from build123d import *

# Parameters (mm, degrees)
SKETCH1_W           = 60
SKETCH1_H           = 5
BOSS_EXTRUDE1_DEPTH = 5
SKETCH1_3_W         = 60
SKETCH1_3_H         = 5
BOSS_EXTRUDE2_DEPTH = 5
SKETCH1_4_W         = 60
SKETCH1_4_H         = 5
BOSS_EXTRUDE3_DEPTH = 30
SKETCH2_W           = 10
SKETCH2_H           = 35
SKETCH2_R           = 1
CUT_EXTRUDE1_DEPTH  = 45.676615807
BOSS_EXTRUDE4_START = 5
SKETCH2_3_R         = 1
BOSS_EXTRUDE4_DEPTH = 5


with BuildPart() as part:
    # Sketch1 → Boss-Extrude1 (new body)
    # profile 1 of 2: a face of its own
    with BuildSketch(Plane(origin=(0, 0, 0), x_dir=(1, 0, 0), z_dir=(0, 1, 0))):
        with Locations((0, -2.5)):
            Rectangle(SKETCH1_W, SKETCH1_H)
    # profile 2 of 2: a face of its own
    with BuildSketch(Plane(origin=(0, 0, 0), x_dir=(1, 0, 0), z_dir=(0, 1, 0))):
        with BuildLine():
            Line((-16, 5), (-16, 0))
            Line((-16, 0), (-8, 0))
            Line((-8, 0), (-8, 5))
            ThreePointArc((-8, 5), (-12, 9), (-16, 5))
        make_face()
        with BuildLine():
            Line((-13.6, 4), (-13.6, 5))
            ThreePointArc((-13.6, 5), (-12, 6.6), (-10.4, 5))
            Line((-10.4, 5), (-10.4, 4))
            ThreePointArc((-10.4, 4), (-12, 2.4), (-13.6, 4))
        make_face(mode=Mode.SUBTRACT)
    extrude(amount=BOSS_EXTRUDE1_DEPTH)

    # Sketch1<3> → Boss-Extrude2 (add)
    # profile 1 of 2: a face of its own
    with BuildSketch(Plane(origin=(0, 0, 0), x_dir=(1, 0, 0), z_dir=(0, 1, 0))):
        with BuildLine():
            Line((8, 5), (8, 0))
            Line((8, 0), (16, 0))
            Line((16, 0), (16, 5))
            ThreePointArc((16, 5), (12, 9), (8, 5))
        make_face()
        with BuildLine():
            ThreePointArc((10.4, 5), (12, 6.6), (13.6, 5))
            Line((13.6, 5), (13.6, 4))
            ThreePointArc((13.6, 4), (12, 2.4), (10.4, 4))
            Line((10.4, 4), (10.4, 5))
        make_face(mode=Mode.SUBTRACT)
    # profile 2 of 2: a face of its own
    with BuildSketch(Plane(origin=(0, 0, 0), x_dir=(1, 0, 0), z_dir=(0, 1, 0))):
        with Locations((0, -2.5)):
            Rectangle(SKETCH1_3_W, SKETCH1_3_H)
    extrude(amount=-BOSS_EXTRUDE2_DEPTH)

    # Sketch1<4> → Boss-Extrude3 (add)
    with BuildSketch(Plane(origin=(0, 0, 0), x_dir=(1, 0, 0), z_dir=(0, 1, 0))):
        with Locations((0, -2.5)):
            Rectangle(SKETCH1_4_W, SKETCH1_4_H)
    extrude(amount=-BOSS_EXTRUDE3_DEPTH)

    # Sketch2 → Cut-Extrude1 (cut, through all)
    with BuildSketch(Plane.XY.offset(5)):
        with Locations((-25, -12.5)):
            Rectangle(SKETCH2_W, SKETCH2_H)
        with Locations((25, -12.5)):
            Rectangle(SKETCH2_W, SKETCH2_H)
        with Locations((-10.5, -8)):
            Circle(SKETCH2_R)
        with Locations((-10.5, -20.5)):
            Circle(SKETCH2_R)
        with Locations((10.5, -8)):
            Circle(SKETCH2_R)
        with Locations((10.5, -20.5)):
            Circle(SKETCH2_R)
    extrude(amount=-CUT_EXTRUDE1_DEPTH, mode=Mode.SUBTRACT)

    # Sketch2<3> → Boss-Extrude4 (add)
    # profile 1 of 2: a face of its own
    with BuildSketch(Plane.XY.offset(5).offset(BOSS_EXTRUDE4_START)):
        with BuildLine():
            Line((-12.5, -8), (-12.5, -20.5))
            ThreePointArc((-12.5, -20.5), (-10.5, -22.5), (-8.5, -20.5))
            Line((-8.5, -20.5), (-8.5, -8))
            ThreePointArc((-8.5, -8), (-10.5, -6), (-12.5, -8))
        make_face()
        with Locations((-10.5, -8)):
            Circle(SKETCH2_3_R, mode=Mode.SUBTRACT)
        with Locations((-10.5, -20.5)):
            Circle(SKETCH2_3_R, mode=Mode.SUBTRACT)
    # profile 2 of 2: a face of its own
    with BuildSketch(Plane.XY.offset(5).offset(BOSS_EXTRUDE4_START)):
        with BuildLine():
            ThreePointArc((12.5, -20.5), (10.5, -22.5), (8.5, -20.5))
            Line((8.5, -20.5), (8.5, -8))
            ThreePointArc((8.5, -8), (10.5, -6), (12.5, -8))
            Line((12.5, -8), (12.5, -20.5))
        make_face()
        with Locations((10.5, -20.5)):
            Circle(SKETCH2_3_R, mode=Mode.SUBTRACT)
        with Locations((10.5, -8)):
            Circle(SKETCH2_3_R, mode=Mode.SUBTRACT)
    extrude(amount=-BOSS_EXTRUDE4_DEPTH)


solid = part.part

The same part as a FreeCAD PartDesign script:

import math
import FreeCAD as App
import Part
import Sketcher

V = App.Vector

doc = App.newDocument("Part")
body = doc.addObject("PartDesign::Body", "Body")

sketch1 = body.newObject("Sketcher::SketchObject", "Sketch")
sketch1.AttachmentSupport = (doc.getObject("XZ_Plane"), [""])
sketch1.MapMode = "FlatFace"
sketch1.addGeometry(Part.LineSegment(V(-30, 0, 0), V(-30, 5, 0)), False)
sketch1.addGeometry(Part.LineSegment(V(-30, 5, 0), V(30, 5, 0)), False)
sketch1.addGeometry(Part.LineSegment(V(30, 5, 0), V(30, 0, 0)), False)
sketch1.addGeometry(Part.LineSegment(V(30, 0, 0), V(-8, 0, 0)), False)
sketch1.addGeometry(Part.LineSegment(V(-8, 0, 0), V(-8, -5, 0)), False)
sketch1.addGeometry(Part.ArcOfCircle(Part.Circle(V(-12, -5, 0), V(0, 0, 1), 4), math.radians(180), math.radians(360)), False)
sketch1.addGeometry(Part.LineSegment(V(-16, -5, 0), V(-16, 0, 0)), False)
sketch1.addGeometry(Part.LineSegment(V(-16, 0, 0), V(-30, 0, 0)), False)
sketch1.addGeometry(Part.LineSegment(V(-13.6, -4, 0), V(-13.6, -5, 0)), False)
sketch1.addGeometry(Part.ArcOfCircle(Part.Circle(V(-12, -5, 0), V(0, 0, 1), 1.6), math.radians(180), math.radians(360)), False)
sketch1.addGeometry(Part.LineSegment(V(-10.4, -5, 0), V(-10.4, -4, 0)), False)
sketch1.addGeometry(Part.ArcOfCircle(Part.Circle(V(-12, -4, 0), V(0, 0, 1), 1.6), math.radians(0), math.radians(180)), False)
sketch1.addConstraint(Sketcher.Constraint("Coincident", 0, 2, 1, 1))
sketch1.addConstraint(Sketcher.Constraint("Coincident", 1, 2, 2, 1))
sketch1.addConstraint(Sketcher.Constraint("Coincident", 2, 2, 3, 1))
sketch1.addConstraint(Sketcher.Constraint("Coincident", 3, 2, 4, 1))
sketch1.addConstraint(Sketcher.Constraint("Tangent", 4, 2, 5, 2))
sketch1.addConstraint(Sketcher.Constraint("Tangent", 5, 1, 6, 1))
sketch1.addConstraint(Sketcher.Constraint("Coincident", 6, 2, 7, 1))
sketch1.addConstraint(Sketcher.Constraint("Coincident", 7, 2, 0, 1))
sketch1.addConstraint(Sketcher.Constraint("Tangent", 8, 2, 9, 1))
sketch1.addConstraint(Sketcher.Constraint("Tangent", 9, 2, 10, 1))
sketch1.addConstraint(Sketcher.Constraint("Tangent", 10, 2, 11, 1))
sketch1.addConstraint(Sketcher.Constraint("Tangent", 11, 2, 8, 1))
sketch1.addConstraint(Sketcher.Constraint("Vertical", 0))
sketch1.addConstraint(Sketcher.Constraint("Horizontal", 1))
sketch1.addConstraint(Sketcher.Constraint("Vertical", 2))
sketch1.addConstraint(Sketcher.Constraint("Horizontal", 3))
sketch1.addConstraint(Sketcher.Constraint("Vertical", 4))
sketch1.addConstraint(Sketcher.Constraint("Vertical", 6))
sketch1.addConstraint(Sketcher.Constraint("Horizontal", 7))
sketch1.addConstraint(Sketcher.Constraint("Vertical", 8))
sketch1.addConstraint(Sketcher.Constraint("Vertical", 10))
sketch1.addConstraint(Sketcher.Constraint("Coincident", 9, 3, 5, 3))
sketch1.addConstraint(Sketcher.Constraint("Symmetric", 2, 2, 7, 2, -1, 1))
sketch1.addConstraint(Sketcher.Constraint("PointOnObject", 2, 2, -1))
sketch1.addConstraint(Sketcher.Constraint("Equal", 2, 4))
sketch1.addConstraint(Sketcher.Constraint("Radius", 5, 4.0))
sketch1.addConstraint(Sketcher.Constraint("Radius", 9, 1.6))
sketch1.addConstraint(Sketcher.Constraint("DistanceX", 1, 1, 1, 2, 60.0))
sketch1.addConstraint(Sketcher.Constraint("DistanceX", 3, 2, 3, 1, 38.0))
sketch1.addConstraint(Sketcher.Constraint("DistanceY", 0, 1, 0, 2, 5.0))
sketch1.addConstraint(Sketcher.Constraint("DistanceY", 8, 2, 8, 1, 1.0))
pad1 = body.newObject("PartDesign::Pad", "Pad")
pad1.Profile = sketch1
pad1.Length = 5
pad1.Reversed = True

sketch2 = body.newObject("Sketcher::SketchObject", "Sketch001")
sketch2.AttachmentSupport = (doc.getObject("XZ_Plane"), [""])
sketch2.MapMode = "FlatFace"
sketch2.addGeometry(Part.LineSegment(V(8, -5, 0), V(8, 0, 0)), False)
sketch2.addGeometry(Part.LineSegment(V(8, 0, 0), V(-30, 0, 0)), False)
sketch2.addGeometry(Part.LineSegment(V(-30, 0, 0), V(-30, 5, 0)), False)
sketch2.addGeometry(Part.LineSegment(V(-30, 5, 0), V(30, 5, 0)), False)
sketch2.addGeometry(Part.LineSegment(V(30, 5, 0), V(30, 0, 0)), False)
sketch2.addGeometry(Part.LineSegment(V(30, 0, 0), V(16, 0, 0)), False)
sketch2.addGeometry(Part.LineSegment(V(16, 0, 0), V(16, -5, 0)), False)
sketch2.addGeometry(Part.ArcOfCircle(Part.Circle(V(12, -5, 0), V(0, 0, 1), 4), math.radians(180), math.radians(360)), False)
sketch2.addGeometry(Part.LineSegment(V(10.4, -4, 0), V(10.4, -5, 0)), False)
sketch2.addGeometry(Part.ArcOfCircle(Part.Circle(V(12, -5, 0), V(0, 0, 1), 1.6), math.radians(180), math.radians(360)), False)
sketch2.addGeometry(Part.LineSegment(V(13.6, -5, 0), V(13.6, -4, 0)), False)
sketch2.addGeometry(Part.ArcOfCircle(Part.Circle(V(12, -4, 0), V(0, 0, 1), 1.6), math.radians(0), math.radians(180)), False)
sketch2.addConstraint(Sketcher.Constraint("Coincident", 0, 2, 1, 1))
sketch2.addConstraint(Sketcher.Constraint("Coincident", 1, 2, 2, 1))
sketch2.addConstraint(Sketcher.Constraint("Coincident", 2, 2, 3, 1))
sketch2.addConstraint(Sketcher.Constraint("Coincident", 3, 2, 4, 1))
sketch2.addConstraint(Sketcher.Constraint("Coincident", 4, 2, 5, 1))
sketch2.addConstraint(Sketcher.Constraint("Coincident", 5, 2, 6, 1))
sketch2.addConstraint(Sketcher.Constraint("Tangent", 6, 2, 7, 2))
sketch2.addConstraint(Sketcher.Constraint("Tangent", 7, 1, 0, 1))
sketch2.addConstraint(Sketcher.Constraint("Tangent", 8, 2, 9, 1))
sketch2.addConstraint(Sketcher.Constraint("Tangent", 9, 2, 10, 1))
sketch2.addConstraint(Sketcher.Constraint("Tangent", 10, 2, 11, 1))
sketch2.addConstraint(Sketcher.Constraint("Tangent", 11, 2, 8, 1))
sketch2.addConstraint(Sketcher.Constraint("Vertical", 0))
sketch2.addConstraint(Sketcher.Constraint("Horizontal", 1))
sketch2.addConstraint(Sketcher.Constraint("Vertical", 2))
sketch2.addConstraint(Sketcher.Constraint("Horizontal", 3))
sketch2.addConstraint(Sketcher.Constraint("Vertical", 4))
sketch2.addConstraint(Sketcher.Constraint("Horizontal", 5))
sketch2.addConstraint(Sketcher.Constraint("Vertical", 6))
sketch2.addConstraint(Sketcher.Constraint("Vertical", 8))
sketch2.addConstraint(Sketcher.Constraint("Vertical", 10))
sketch2.addConstraint(Sketcher.Constraint("Coincident", 9, 3, 7, 3))
sketch2.addConstraint(Sketcher.Constraint("Symmetric", 1, 2, 4, 2, -1, 1))
sketch2.addConstraint(Sketcher.Constraint("PointOnObject", 0, 2, -1))
sketch2.addConstraint(Sketcher.Constraint("Equal", 0, 2))
sketch2.addConstraint(Sketcher.Constraint("Radius", 7, 4.0))
sketch2.addConstraint(Sketcher.Constraint("Radius", 9, 1.6))
sketch2.addConstraint(Sketcher.Constraint("DistanceX", 1, 2, 1, 1, 38.0))
sketch2.addConstraint(Sketcher.Constraint("DistanceX", 3, 1, 3, 2, 60.0))
sketch2.addConstraint(Sketcher.Constraint("DistanceY", 0, 1, 0, 2, 5.0))
sketch2.addConstraint(Sketcher.Constraint("DistanceY", 8, 2, 8, 1, 1.0))
pad2 = body.newObject("PartDesign::Pad", "Pad001")
pad2.Profile = sketch2
pad2.Length = 5

sketch3 = body.newObject("Sketcher::SketchObject", "Sketch002")
sketch3.AttachmentSupport = (doc.getObject("XZ_Plane"), [""])
sketch3.MapMode = "FlatFace"
sketch3.addGeometry(Part.LineSegment(V(-30, 0, 0), V(-30, 5, 0)), False)
sketch3.addGeometry(Part.LineSegment(V(-30, 5, 0), V(30, 5, 0)), False)
sketch3.addGeometry(Part.LineSegment(V(30, 5, 0), V(30, 0, 0)), False)
sketch3.addGeometry(Part.LineSegment(V(30, 0, 0), V(-30, 0, 0)), False)
sketch3.addConstraint(Sketcher.Constraint("Coincident", 0, 2, 1, 1))
sketch3.addConstraint(Sketcher.Constraint("Coincident", 1, 2, 2, 1))
sketch3.addConstraint(Sketcher.Constraint("Coincident", 2, 2, 3, 1))
sketch3.addConstraint(Sketcher.Constraint("Coincident", 3, 2, 0, 1))
sketch3.addConstraint(Sketcher.Constraint("Vertical", 0))
sketch3.addConstraint(Sketcher.Constraint("Horizontal", 1))
sketch3.addConstraint(Sketcher.Constraint("Vertical", 2))
sketch3.addConstraint(Sketcher.Constraint("Horizontal", 3))
sketch3.addConstraint(Sketcher.Constraint("Symmetric", 2, 2, 3, 2, -1, 1))
sketch3.addConstraint(Sketcher.Constraint("DistanceX", 1, 1, 1, 2, 60.0))
sketch3.addConstraint(Sketcher.Constraint("DistanceY", 0, 1, 0, 2, 5.0))
pad3 = body.newObject("PartDesign::Pad", "Pad002")
pad3.Profile = sketch3
pad3.Length = 30

sketch4 = body.newObject("Sketcher::SketchObject", "Sketch003")
sketch4.AttachmentSupport = (doc.getObject("XY_Plane"), [""])
sketch4.MapMode = "FlatFace"
sketch4.AttachmentOffset = App.Placement(V(0, 0, 5), App.Rotation())
sketch4.addGeometry(Part.LineSegment(V(-30, 5, 0), V(-30, -30, 0)), False)
sketch4.addGeometry(Part.LineSegment(V(-30, -30, 0), V(-20, -30, 0)), False)
sketch4.addGeometry(Part.LineSegment(V(-20, -30, 0), V(-20, 5, 0)), False)
sketch4.addGeometry(Part.LineSegment(V(-20, 5, 0), V(-30, 5, 0)), False)
sketch4.addGeometry(Part.LineSegment(V(20, 5, 0), V(20, -30, 0)), False)
sketch4.addGeometry(Part.LineSegment(V(20, -30, 0), V(30, -30, 0)), False)
sketch4.addGeometry(Part.LineSegment(V(30, -30, 0), V(30, 5, 0)), False)
sketch4.addGeometry(Part.LineSegment(V(30, 5, 0), V(20, 5, 0)), False)
sketch4.addGeometry(Part.Circle(V(-10.5, -8, 0), V(0, 0, 1), 1), False)
sketch4.addGeometry(Part.Circle(V(-10.5, -20.5, 0), V(0, 0, 1), 1), False)
sketch4.addGeometry(Part.Circle(V(10.5, -8, 0), V(0, 0, 1), 1), False)
sketch4.addGeometry(Part.Circle(V(10.5, -20.5, 0), V(0, 0, 1), 1), False)
sketch4.addConstraint(Sketcher.Constraint("Coincident", 0, 2, 1, 1))
sketch4.addConstraint(Sketcher.Constraint("Coincident", 1, 2, 2, 1))
sketch4.addConstraint(Sketcher.Constraint("Coincident", 2, 2, 3, 1))
sketch4.addConstraint(Sketcher.Constraint("Coincident", 3, 2, 0, 1))
sketch4.addConstraint(Sketcher.Constraint("Coincident", 4, 2, 5, 1))
sketch4.addConstraint(Sketcher.Constraint("Coincident", 5, 2, 6, 1))
sketch4.addConstraint(Sketcher.Constraint("Coincident", 6, 2, 7, 1))
sketch4.addConstraint(Sketcher.Constraint("Coincident", 7, 2, 4, 1))
sketch4.addConstraint(Sketcher.Constraint("Vertical", 0))
sketch4.addConstraint(Sketcher.Constraint("Horizontal", 1))
sketch4.addConstraint(Sketcher.Constraint("Vertical", 2))
sketch4.addConstraint(Sketcher.Constraint("Horizontal", 3))
sketch4.addConstraint(Sketcher.Constraint("Vertical", 4))
sketch4.addConstraint(Sketcher.Constraint("Horizontal", 5))
sketch4.addConstraint(Sketcher.Constraint("Vertical", 6))
sketch4.addConstraint(Sketcher.Constraint("Horizontal", 7))
sketch4.addConstraint(Sketcher.Constraint("Equal", 8, 9))
sketch4.addConstraint(Sketcher.Constraint("Equal", 9, 10))
sketch4.addConstraint(Sketcher.Constraint("Equal", 10, 11))
sketch4.addConstraint(Sketcher.Constraint("Symmetric", 8, 3, 10, 3, -2))
sketch4.addConstraint(Sketcher.Constraint("Symmetric", 9, 3, 11, 3, -2))
sketch4.addConstraint(Sketcher.Constraint("Symmetric", 1, 2, 4, 2, -2))
sketch4.addConstraint(Sketcher.Constraint("Symmetric", 3, 2, 6, 2, -2))
sketch4.addConstraint(Sketcher.Constraint("Vertical", 8, 3, 9, 3))
sketch4.addConstraint(Sketcher.Constraint("Diameter", 8, 2.0))
sketch4.addConstraint(Sketcher.Constraint("DistanceX", 1, 1, 1, 2, 10.0))
sketch4.addConstraint(Sketcher.Constraint("DistanceY", 0, 2, 0, 1, 35.0))
sketch4.addConstraint(Sketcher.Constraint("DistanceY", 8, 3, -1, 1, 8.0))
sketch4.addConstraint(Sketcher.Constraint("DistanceX", 0, 2, -1, 1, 30.0))
sketch4.addConstraint(Sketcher.Constraint("DistanceY", 0, 2, -1, 1, 30.0))
sketch4.addConstraint(Sketcher.Constraint("DistanceX", 8, 3, 10, 3, 21.0))
sketch4.addConstraint(Sketcher.Constraint("DistanceY", 9, 3, -1, 1, 20.5))
pocket1 = body.newObject("PartDesign::Pocket", "Pocket")
pocket1.Profile = sketch4
pocket1.Type = "ThroughAll"

sketch5 = body.newObject("Sketcher::SketchObject", "Sketch004")
sketch5.AttachmentSupport = (doc.getObject("XY_Plane"), [""])
sketch5.MapMode = "FlatFace"
sketch5.AttachmentOffset = App.Placement(V(0, 0, 10), App.Rotation())
sketch5.addGeometry(Part.LineSegment(V(-12.5, -8, 0), V(-12.5, -20.5, 0)), False)
sketch5.addGeometry(Part.ArcOfCircle(Part.Circle(V(-10.5, -20.5, 0), V(0, 0, 1), 2), math.radians(180), math.radians(360)), False)
sketch5.addGeometry(Part.LineSegment(V(-8.5, -20.5, 0), V(-8.5, -8, 0)), False)
sketch5.addGeometry(Part.ArcOfCircle(Part.Circle(V(-10.5, -8, 0), V(0, 0, 1), 2), math.radians(0), math.radians(180)), False)
sketch5.addGeometry(Part.Circle(V(-10.5, -20.5, 0), V(0, 0, 1), 1), False)
sketch5.addGeometry(Part.Circle(V(-10.5, -8, 0), V(0, 0, 1), 1), False)
sketch5.addGeometry(Part.ArcOfCircle(Part.Circle(V(10.5, -20.5, 0), V(0, 0, 1), 2), math.radians(180), math.radians(360)), False)
sketch5.addGeometry(Part.LineSegment(V(12.5, -20.5, 0), V(12.5, -8, 0)), False)
sketch5.addGeometry(Part.ArcOfCircle(Part.Circle(V(10.5, -8, 0), V(0, 0, 1), 2), math.radians(0), math.radians(180)), False)
sketch5.addGeometry(Part.LineSegment(V(8.5, -8, 0), V(8.5, -20.5, 0)), False)
sketch5.addGeometry(Part.Circle(V(10.5, -20.5, 0), V(0, 0, 1), 1), False)
sketch5.addGeometry(Part.Circle(V(10.5, -8, 0), V(0, 0, 1), 1), False)
sketch5.addConstraint(Sketcher.Constraint("Tangent", 0, 2, 1, 1))
sketch5.addConstraint(Sketcher.Constraint("Tangent", 1, 2, 2, 1))
sketch5.addConstraint(Sketcher.Constraint("Tangent", 2, 2, 3, 1))
sketch5.addConstraint(Sketcher.Constraint("Tangent", 3, 2, 0, 1))
sketch5.addConstraint(Sketcher.Constraint("Tangent", 6, 2, 7, 1))
sketch5.addConstraint(Sketcher.Constraint("Tangent", 7, 2, 8, 1))
sketch5.addConstraint(Sketcher.Constraint("Tangent", 8, 2, 9, 1))
sketch5.addConstraint(Sketcher.Constraint("Tangent", 9, 2, 6, 1))
sketch5.addConstraint(Sketcher.Constraint("Vertical", 0))
sketch5.addConstraint(Sketcher.Constraint("Vertical", 2))
sketch5.addConstraint(Sketcher.Constraint("Vertical", 7))
sketch5.addConstraint(Sketcher.Constraint("Vertical", 9))
sketch5.addConstraint(Sketcher.Constraint("Coincident", 4, 3, 1, 3))
sketch5.addConstraint(Sketcher.Constraint("Coincident", 5, 3, 3, 3))
sketch5.addConstraint(Sketcher.Constraint("Coincident", 10, 3, 6, 3))
sketch5.addConstraint(Sketcher.Constraint("Coincident", 11, 3, 8, 3))
sketch5.addConstraint(Sketcher.Constraint("Equal", 4, 5))
sketch5.addConstraint(Sketcher.Constraint("Equal", 3, 6))
sketch5.addConstraint(Sketcher.Constraint("Equal", 5, 10))
sketch5.addConstraint(Sketcher.Constraint("Equal", 10, 11))
sketch5.addConstraint(Sketcher.Constraint("Symmetric", 1, 3, 6, 3, -2))
sketch5.addConstraint(Sketcher.Constraint("Horizontal", 5, 3, 8, 3))
sketch5.addConstraint(Sketcher.Constraint("Diameter", 4, 2.0))
sketch5.addConstraint(Sketcher.Constraint("Radius", 1, 2.0))
sketch5.addConstraint(Sketcher.Constraint("DistanceY", 0, 2, 0, 1, 12.5))
sketch5.addConstraint(Sketcher.Constraint("DistanceY", 3, 3, -1, 1, 8.0))
sketch5.addConstraint(Sketcher.Constraint("DistanceX", 1, 3, 6, 3, 21.0))
pad4 = body.newObject("PartDesign::Pad", "Pad003")
pad4.Profile = sketch5
pad4.Length = 5
pad4.Reversed = True

doc.recompute()
